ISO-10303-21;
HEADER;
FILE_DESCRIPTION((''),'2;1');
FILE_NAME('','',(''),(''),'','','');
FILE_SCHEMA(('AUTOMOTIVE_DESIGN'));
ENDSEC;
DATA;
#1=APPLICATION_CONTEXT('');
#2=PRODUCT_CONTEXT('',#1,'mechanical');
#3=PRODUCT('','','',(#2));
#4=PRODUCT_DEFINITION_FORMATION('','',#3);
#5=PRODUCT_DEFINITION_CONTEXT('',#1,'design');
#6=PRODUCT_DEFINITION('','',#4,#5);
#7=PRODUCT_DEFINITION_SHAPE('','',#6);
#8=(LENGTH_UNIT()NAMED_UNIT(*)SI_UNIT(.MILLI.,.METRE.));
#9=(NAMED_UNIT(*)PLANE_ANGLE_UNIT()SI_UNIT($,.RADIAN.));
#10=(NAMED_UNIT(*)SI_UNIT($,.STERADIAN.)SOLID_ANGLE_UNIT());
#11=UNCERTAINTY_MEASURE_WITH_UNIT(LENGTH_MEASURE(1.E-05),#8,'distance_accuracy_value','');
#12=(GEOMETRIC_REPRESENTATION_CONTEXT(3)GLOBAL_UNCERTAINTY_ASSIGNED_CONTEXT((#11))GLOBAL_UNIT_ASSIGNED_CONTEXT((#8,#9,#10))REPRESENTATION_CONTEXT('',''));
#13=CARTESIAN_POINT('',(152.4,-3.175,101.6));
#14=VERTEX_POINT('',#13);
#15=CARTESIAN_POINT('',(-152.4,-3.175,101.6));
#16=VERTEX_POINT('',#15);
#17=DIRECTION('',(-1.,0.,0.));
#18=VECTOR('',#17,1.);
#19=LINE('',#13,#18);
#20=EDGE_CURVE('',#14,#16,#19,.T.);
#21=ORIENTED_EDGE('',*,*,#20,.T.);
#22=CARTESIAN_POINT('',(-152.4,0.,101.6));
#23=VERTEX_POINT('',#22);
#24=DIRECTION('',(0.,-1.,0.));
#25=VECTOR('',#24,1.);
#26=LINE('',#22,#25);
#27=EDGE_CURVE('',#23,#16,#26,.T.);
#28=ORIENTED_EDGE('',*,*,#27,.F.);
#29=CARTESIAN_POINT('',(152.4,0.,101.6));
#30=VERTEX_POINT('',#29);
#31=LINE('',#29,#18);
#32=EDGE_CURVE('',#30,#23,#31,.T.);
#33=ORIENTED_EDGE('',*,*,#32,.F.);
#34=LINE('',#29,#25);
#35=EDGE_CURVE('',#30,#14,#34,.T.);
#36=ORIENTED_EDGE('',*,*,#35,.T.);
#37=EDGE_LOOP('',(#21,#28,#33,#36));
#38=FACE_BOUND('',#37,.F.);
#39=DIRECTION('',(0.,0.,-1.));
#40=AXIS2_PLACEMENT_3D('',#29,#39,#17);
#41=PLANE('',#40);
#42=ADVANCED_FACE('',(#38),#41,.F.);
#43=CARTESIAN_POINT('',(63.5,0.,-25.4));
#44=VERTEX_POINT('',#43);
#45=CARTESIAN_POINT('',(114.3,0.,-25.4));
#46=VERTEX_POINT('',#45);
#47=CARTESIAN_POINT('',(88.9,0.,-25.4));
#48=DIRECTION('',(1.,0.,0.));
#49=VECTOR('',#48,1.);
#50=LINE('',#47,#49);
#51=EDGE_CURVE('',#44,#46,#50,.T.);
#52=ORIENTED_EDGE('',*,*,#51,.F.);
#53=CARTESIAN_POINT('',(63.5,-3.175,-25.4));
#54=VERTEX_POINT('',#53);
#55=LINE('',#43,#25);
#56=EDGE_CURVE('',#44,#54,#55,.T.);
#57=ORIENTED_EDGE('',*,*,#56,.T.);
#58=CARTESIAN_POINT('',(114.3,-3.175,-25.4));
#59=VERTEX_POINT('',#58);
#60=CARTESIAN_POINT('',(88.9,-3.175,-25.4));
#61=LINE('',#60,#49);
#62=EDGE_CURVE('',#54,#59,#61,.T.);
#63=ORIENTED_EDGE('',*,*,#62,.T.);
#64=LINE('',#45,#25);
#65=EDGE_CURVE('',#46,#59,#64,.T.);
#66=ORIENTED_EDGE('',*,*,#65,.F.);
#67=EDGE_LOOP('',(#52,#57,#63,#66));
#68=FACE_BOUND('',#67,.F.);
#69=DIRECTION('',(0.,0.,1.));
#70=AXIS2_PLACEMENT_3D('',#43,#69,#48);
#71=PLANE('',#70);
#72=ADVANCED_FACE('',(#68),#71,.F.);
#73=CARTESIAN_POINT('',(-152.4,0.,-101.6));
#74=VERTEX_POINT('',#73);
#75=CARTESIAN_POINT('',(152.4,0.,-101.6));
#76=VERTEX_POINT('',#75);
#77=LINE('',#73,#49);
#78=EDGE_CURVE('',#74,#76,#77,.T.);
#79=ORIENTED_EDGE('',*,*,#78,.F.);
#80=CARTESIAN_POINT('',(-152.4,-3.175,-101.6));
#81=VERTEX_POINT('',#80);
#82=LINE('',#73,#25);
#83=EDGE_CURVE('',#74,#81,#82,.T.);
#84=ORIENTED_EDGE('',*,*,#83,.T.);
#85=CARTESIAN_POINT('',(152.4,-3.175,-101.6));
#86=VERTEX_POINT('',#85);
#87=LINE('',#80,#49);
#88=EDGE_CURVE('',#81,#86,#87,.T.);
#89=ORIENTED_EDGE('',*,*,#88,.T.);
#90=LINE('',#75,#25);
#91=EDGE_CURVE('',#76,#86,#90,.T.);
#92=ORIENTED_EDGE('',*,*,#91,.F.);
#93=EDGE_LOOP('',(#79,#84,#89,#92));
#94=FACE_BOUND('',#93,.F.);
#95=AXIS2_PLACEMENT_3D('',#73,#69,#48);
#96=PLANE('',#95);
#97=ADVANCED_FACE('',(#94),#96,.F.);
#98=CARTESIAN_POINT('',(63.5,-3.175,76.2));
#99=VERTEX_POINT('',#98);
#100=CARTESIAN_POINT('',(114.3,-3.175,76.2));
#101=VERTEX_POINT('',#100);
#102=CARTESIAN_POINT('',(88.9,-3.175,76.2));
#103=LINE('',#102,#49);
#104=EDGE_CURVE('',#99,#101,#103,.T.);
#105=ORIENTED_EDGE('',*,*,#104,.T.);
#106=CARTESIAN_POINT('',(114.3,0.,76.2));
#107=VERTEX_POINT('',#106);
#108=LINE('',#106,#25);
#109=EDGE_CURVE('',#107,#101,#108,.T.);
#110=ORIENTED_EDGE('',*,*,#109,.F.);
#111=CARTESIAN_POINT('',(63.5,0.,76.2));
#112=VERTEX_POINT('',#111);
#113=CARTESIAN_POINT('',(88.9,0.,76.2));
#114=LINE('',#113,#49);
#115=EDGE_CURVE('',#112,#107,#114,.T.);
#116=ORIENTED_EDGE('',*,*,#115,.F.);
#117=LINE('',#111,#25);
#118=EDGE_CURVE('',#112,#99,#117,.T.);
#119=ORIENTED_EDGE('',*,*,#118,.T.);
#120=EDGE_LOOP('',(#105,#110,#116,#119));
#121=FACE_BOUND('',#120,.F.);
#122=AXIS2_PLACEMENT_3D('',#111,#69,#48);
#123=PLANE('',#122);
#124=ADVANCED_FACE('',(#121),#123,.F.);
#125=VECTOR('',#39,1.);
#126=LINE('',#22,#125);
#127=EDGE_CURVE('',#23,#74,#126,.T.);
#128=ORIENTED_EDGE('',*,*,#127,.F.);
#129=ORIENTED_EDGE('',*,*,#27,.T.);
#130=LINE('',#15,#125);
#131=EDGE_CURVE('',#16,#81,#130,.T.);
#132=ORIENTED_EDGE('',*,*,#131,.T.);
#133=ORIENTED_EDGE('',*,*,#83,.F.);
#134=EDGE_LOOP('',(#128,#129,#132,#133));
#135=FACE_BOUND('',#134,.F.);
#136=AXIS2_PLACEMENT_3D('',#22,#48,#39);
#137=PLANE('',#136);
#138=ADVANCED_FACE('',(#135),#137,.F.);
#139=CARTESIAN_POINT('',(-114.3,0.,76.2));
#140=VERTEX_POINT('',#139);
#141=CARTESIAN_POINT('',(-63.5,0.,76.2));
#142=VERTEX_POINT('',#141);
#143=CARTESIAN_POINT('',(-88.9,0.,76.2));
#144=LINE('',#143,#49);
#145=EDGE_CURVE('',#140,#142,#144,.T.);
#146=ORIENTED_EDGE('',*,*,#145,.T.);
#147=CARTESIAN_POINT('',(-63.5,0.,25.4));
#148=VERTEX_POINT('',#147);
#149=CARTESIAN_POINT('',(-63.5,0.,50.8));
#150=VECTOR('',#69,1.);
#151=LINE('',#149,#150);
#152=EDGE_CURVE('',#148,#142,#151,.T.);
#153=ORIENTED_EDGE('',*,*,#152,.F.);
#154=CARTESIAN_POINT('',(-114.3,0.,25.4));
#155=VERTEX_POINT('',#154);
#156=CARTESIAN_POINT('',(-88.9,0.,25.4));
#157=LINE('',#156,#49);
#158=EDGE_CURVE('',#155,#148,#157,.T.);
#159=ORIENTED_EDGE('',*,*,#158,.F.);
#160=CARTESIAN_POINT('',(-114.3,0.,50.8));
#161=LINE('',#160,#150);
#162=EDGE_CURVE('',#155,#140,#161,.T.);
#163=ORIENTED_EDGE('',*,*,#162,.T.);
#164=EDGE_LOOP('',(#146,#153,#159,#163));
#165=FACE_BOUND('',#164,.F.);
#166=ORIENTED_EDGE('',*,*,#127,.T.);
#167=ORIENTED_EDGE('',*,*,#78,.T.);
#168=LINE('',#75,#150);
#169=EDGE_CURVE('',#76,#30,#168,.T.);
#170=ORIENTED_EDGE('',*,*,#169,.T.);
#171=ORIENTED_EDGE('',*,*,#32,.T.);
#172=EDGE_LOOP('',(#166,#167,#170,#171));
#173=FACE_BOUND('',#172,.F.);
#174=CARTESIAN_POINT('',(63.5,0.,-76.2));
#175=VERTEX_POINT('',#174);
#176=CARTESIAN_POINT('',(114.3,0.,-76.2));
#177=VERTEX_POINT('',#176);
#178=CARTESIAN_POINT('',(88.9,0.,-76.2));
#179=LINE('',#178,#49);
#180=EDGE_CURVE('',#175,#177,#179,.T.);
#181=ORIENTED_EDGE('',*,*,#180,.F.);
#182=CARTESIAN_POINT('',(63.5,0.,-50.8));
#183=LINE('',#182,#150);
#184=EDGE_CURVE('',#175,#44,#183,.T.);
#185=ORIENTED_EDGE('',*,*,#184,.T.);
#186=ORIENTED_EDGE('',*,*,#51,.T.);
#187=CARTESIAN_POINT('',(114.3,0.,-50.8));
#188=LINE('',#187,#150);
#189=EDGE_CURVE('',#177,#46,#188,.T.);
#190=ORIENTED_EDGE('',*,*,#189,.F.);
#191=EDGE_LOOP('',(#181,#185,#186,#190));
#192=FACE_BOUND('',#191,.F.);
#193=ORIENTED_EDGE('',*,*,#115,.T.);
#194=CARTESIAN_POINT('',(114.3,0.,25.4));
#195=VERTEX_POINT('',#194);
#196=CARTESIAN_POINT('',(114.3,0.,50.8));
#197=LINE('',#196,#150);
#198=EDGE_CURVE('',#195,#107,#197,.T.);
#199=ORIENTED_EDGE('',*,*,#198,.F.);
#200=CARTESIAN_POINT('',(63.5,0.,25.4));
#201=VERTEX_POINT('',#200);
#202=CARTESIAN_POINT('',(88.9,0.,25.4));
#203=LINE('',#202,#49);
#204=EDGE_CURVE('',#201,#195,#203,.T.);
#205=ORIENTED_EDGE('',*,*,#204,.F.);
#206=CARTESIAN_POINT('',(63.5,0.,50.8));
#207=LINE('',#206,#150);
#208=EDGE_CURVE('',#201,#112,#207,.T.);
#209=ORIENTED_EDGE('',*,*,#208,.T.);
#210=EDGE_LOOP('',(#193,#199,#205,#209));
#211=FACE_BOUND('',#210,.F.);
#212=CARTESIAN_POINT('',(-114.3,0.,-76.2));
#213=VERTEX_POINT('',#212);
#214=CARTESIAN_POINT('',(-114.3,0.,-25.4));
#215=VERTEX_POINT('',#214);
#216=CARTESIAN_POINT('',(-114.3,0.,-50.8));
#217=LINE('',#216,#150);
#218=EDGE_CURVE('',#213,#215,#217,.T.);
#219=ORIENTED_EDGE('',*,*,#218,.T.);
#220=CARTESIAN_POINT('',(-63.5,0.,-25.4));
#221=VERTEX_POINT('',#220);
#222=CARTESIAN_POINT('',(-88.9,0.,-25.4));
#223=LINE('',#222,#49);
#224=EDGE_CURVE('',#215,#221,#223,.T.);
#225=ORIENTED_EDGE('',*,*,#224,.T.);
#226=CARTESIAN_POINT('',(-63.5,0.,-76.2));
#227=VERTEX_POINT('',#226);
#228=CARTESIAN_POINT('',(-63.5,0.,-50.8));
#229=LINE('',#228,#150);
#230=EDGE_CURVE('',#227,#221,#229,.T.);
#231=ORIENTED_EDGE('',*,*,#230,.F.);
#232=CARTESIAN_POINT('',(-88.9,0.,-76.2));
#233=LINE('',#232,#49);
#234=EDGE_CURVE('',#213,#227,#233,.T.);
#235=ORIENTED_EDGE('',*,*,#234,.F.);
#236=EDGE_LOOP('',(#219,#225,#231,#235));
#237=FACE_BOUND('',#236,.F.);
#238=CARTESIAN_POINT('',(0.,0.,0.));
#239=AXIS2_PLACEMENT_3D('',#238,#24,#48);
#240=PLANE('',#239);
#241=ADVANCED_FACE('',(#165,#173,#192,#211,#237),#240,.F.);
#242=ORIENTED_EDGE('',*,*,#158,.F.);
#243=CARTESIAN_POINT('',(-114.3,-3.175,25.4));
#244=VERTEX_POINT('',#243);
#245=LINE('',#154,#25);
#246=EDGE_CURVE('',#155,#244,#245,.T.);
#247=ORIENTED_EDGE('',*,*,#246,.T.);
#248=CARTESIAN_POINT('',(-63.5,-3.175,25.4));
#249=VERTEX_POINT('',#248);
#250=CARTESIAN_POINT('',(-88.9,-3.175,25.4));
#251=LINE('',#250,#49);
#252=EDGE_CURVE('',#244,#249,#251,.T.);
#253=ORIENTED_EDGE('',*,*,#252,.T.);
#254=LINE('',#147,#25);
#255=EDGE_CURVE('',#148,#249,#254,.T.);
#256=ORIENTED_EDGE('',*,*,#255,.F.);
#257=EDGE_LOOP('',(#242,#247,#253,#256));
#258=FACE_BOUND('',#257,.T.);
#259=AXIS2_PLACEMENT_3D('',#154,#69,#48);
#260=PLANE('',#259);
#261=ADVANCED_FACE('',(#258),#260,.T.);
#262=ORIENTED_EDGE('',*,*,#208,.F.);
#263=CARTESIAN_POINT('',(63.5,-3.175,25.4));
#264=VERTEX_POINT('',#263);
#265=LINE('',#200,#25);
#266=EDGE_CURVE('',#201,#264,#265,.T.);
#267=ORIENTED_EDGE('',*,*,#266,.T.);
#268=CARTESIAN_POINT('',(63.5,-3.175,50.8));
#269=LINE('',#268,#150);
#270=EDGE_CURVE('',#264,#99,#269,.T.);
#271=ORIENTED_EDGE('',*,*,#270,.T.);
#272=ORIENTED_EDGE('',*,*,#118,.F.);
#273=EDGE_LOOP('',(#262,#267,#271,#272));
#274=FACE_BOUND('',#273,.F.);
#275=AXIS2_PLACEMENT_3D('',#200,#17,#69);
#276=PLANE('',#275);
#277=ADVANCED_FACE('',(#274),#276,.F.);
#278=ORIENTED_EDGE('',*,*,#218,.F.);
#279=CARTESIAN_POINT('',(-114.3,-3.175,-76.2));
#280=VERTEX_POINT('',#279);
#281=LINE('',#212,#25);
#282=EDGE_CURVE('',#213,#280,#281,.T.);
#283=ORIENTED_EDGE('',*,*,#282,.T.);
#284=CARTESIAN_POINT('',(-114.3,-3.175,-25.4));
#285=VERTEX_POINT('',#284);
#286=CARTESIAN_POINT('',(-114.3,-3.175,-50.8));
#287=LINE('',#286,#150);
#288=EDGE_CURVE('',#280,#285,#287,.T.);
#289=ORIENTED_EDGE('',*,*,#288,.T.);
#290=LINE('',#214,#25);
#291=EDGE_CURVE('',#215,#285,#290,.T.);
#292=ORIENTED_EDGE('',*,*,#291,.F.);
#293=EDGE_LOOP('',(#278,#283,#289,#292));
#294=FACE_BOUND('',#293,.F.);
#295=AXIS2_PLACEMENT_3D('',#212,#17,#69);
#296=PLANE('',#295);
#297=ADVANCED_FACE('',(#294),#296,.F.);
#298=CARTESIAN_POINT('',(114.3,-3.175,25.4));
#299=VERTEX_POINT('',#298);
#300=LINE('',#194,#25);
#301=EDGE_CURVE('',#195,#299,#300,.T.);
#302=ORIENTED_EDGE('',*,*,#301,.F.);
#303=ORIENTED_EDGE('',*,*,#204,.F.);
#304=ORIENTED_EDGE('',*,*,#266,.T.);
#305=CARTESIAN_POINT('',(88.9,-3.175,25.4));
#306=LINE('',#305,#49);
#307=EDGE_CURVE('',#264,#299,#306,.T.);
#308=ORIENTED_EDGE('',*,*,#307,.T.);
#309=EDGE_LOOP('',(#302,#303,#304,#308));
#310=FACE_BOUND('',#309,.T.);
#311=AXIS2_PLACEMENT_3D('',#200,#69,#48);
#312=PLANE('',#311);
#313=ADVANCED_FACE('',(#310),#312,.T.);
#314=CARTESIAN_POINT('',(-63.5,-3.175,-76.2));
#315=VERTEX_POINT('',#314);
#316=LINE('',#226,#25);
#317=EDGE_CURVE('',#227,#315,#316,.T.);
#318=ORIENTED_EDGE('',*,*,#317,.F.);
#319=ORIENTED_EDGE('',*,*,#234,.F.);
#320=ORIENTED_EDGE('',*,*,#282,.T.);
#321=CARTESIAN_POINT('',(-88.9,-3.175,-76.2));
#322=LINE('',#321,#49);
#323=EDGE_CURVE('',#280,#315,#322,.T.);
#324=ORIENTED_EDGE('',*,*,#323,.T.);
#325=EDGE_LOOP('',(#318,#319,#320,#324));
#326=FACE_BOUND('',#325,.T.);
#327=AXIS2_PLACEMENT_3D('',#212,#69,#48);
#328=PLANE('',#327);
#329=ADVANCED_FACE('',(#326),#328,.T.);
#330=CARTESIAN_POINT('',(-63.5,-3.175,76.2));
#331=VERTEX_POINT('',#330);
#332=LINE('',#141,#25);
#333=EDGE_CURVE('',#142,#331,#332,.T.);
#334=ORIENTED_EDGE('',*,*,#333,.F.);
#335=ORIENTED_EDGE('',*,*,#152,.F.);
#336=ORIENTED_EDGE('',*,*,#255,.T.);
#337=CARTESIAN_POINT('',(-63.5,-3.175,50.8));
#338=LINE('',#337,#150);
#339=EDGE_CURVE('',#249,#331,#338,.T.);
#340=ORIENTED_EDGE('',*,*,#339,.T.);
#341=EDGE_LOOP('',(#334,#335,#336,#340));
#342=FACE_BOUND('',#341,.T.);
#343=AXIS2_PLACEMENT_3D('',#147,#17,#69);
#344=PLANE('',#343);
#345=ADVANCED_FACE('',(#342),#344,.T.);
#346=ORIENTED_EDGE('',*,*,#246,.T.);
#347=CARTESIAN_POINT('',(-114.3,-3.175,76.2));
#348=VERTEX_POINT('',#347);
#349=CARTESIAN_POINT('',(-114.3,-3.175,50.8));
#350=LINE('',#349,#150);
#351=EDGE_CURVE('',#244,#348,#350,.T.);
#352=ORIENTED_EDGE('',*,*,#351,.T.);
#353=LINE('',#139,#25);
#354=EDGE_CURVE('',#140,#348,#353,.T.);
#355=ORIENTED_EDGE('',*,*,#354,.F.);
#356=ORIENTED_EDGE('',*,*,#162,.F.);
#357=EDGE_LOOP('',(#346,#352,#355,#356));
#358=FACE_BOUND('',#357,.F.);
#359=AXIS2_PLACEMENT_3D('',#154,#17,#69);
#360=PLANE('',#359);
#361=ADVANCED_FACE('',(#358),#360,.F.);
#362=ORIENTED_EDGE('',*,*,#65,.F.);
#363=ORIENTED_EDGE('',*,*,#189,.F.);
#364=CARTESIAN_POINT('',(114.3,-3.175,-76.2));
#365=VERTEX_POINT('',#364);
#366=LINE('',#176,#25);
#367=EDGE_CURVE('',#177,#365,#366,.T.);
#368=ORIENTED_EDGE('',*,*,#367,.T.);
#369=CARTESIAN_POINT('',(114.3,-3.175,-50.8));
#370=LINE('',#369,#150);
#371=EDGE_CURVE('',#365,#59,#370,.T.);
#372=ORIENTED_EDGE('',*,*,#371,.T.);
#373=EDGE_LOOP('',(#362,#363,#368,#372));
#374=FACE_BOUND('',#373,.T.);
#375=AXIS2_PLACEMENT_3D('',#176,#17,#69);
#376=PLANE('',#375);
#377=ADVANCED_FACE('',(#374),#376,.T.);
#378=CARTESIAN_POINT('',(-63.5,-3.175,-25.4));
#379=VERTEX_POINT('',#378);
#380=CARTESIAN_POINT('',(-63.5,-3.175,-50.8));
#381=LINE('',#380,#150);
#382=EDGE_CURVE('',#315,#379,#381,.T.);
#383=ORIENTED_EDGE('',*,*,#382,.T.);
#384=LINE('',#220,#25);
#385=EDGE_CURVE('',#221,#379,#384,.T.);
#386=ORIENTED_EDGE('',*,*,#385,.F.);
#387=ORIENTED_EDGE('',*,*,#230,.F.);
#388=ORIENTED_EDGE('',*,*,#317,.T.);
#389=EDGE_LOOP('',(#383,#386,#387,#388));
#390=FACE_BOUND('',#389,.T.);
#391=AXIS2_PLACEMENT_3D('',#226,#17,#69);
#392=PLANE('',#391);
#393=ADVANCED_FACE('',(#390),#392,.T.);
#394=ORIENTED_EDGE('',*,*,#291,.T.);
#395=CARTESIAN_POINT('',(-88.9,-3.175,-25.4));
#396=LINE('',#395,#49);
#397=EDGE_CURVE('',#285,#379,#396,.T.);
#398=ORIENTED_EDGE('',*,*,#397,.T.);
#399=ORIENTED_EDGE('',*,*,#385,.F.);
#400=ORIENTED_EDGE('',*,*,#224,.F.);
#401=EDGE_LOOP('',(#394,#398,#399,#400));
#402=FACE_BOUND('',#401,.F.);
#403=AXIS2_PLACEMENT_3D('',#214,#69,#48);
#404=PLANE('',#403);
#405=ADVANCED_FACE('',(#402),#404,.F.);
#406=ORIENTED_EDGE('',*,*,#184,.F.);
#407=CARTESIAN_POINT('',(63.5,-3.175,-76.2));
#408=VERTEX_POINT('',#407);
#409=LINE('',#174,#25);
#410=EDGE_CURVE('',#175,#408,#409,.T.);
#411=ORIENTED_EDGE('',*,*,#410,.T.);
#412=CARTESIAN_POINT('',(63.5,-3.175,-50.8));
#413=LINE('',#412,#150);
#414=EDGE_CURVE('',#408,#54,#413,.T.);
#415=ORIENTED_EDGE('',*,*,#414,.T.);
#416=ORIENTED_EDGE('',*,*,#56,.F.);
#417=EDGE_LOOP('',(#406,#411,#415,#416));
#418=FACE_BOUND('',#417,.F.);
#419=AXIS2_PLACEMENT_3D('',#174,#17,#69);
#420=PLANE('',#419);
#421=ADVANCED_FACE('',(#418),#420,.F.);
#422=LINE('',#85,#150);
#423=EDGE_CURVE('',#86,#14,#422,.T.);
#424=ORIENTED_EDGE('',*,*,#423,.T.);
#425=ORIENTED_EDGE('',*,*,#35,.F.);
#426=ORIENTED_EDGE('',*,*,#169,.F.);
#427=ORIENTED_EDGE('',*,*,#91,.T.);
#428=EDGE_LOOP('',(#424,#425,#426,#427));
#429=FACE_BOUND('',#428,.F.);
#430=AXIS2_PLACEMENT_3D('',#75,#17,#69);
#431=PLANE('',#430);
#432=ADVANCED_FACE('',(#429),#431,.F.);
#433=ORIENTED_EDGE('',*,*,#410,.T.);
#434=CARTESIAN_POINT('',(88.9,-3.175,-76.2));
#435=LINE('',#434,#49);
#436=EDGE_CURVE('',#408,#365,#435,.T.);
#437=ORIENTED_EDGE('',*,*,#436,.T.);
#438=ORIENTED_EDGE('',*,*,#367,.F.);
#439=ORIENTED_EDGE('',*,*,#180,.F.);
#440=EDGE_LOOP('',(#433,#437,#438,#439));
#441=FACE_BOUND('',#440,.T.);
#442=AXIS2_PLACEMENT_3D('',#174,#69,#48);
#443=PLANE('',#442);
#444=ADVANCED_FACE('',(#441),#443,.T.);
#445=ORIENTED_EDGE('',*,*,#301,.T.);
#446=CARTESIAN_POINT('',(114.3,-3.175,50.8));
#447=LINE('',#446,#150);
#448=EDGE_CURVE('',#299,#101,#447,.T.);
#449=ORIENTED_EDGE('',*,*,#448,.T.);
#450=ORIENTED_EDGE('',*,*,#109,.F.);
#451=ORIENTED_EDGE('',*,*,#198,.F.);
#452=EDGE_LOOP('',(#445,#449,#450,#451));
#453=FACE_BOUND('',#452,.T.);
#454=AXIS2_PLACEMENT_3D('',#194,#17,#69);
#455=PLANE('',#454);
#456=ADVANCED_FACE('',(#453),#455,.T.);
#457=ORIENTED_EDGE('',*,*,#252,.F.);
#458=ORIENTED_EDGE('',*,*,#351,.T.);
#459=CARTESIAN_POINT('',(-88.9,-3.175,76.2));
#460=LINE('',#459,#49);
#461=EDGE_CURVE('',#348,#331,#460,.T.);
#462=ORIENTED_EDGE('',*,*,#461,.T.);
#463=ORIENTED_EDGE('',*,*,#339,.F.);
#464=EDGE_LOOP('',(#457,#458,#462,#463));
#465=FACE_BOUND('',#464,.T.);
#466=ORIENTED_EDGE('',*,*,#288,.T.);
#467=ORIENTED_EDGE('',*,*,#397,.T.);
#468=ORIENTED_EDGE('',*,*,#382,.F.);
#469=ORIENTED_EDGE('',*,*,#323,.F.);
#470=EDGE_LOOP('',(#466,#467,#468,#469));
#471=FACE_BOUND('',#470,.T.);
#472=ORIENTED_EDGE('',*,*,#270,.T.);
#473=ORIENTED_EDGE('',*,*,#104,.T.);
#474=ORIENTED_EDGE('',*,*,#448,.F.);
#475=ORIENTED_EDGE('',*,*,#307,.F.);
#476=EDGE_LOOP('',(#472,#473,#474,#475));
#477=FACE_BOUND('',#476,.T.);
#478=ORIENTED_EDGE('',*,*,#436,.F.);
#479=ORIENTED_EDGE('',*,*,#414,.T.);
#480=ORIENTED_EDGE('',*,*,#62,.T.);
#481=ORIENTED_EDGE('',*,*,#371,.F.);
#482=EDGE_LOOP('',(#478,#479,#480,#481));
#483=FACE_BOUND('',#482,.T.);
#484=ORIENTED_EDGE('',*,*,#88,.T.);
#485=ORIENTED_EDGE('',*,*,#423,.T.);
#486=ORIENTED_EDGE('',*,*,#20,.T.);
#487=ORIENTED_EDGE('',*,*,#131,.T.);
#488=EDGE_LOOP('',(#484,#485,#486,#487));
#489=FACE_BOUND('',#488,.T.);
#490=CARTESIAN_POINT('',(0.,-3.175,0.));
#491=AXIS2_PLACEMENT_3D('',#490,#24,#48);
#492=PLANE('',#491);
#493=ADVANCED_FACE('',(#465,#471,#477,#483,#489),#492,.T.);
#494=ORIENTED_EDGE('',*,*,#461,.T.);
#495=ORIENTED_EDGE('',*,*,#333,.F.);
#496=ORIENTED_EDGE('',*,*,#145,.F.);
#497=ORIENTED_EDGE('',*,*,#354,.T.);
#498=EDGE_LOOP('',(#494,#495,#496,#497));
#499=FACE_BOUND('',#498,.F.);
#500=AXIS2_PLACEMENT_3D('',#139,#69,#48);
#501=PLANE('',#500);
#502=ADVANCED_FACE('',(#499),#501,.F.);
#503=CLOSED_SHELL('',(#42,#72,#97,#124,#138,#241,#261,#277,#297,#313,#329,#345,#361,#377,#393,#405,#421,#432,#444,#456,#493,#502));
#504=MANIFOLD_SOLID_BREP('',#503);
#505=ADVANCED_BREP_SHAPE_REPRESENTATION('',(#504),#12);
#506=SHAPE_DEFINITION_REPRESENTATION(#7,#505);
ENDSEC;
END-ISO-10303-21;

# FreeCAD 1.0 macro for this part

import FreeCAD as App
import Part
import Sketcher

V = App.Vector
Q = App.Units.Quantity


def add_polygon(sketch, points):
    """Adds a closed chain of lines whose ends are joined by coincident constraints."""
    first, n = sketch.GeometryCount, len(points)
    for a, b in zip(points, points[1:] + points[:1]):
        sketch.addGeometry(Part.LineSegment(App.Vector(*a, 0), App.Vector(*b, 0)), False)
    for i in range(n):
        sketch.addConstraint(Sketcher.Constraint("Coincident", first + i, 2, first + (i + 1) % n, 1))

doc = App.newDocument("Part")
body = doc.addObject("PartDesign::Body", "Body")

# Sketch on XZ plane
sketch1 = body.newObject("Sketcher::SketchObject", "Sketch")
sketch1.AttachmentSupport = (doc.getObject("XZ_Plane"), [""])
sketch1.MapMode = "FlatFace"
add_polygon(sketch1, [(152.4, 101.6), (-152.4, 101.6), (-152.4, -101.6), (152.4, -101.6)])  # lines 0-3
add_polygon(sketch1, [(-63.5, -76.2), (-114.3, -76.2), (-114.3, -25.4), (-63.5, -25.4)])  # lines 4-7
add_polygon(sketch1, [(114.3, -76.2), (63.5, -76.2), (63.5, -25.4), (114.3, -25.4)])  # lines 8-11
add_polygon(sketch1, [(-63.5, 25.4), (-114.3, 25.4), (-114.3, 76.2), (-63.5, 76.2)])  # lines 12-15
add_polygon(sketch1, [(114.3, 25.4), (63.5, 25.4), (63.5, 76.2), (114.3, 76.2)])  # lines 16-19
sketch1.addConstraint([
    Sketcher.Constraint("Horizontal", 0),
    Sketcher.Constraint("Vertical", 1),
    Sketcher.Constraint("Horizontal", 2),
    Sketcher.Constraint("Vertical", 3),
    Sketcher.Constraint("Horizontal", 4),
    Sketcher.Constraint("Vertical", 5),
    Sketcher.Constraint("Horizontal", 6),
    Sketcher.Constraint("Vertical", 7),
    Sketcher.Constraint("Horizontal", 8),
    Sketcher.Constraint("Vertical", 9),
    Sketcher.Constraint("Horizontal", 10),
    Sketcher.Constraint("Vertical", 11),
    Sketcher.Constraint("Horizontal", 12),
    Sketcher.Constraint("Vertical", 13),
    Sketcher.Constraint("Horizontal", 14),
    Sketcher.Constraint("Vertical", 15),
    Sketcher.Constraint("Horizontal", 16),
    Sketcher.Constraint("Vertical", 17),
    Sketcher.Constraint("Horizontal", 18),
    Sketcher.Constraint("Vertical", 19),
    Sketcher.Constraint("Symmetric", 0, 2, 2, 2, -1, 1),
    Sketcher.Constraint("Symmetric", 10, 2, 12, 2, -1, 1),
    Sketcher.Constraint("Symmetric", 8, 2, 14, 2, -1, 1),
    Sketcher.Constraint("Symmetric", 6, 2, 16, 2, -1, 1),
    Sketcher.Constraint("Symmetric", 4, 2, 18, 2, -1, 1),
    Sketcher.Constraint("Symmetric", 7, 2, 8, 2, -2),
    Sketcher.Constraint("Symmetric", 5, 2, 10, 2, -2),
    Sketcher.Constraint("Equal", 18, 5),
    Sketcher.Constraint("DistanceX", 0, 2, 0, 1, Q("12 in")),
    Sketcher.Constraint("DistanceX", 4, 2, 4, 1, Q("2 in")),
    Sketcher.Constraint("DistanceY", 1, 2, 1, 1, Q("8 in")),
    Sketcher.Constraint("DistanceY", 4, 2, -1, 1, Q("3 in")),
    Sketcher.Constraint("DistanceX", 7, 2, 8, 2, Q("5 in")),
])
pad1 = body.newObject("PartDesign::Pad", "Pad")
pad1.Profile = sketch1
pad1.Length = Q("0.125 in")

doc.recompute()
